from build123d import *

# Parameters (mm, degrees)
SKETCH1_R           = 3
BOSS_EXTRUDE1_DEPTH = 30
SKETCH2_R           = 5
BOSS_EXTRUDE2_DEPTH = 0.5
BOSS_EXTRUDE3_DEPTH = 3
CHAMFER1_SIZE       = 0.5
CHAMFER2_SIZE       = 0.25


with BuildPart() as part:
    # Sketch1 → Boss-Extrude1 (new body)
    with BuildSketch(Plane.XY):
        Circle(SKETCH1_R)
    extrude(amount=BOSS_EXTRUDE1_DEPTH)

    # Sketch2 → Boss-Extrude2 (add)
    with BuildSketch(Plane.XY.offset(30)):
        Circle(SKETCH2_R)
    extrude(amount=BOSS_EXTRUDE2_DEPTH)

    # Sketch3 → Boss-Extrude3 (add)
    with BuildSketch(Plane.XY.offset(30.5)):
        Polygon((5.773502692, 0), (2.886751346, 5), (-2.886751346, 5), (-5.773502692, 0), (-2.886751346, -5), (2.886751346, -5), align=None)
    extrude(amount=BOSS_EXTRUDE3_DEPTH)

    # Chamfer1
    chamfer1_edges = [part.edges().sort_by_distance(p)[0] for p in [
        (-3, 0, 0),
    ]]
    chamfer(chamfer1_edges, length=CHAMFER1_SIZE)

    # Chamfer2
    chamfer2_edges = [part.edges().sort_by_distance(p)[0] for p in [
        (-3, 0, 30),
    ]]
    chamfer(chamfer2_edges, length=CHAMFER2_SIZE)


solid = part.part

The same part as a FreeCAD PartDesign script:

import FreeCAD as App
import Part
import Sketcher

V = App.Vector
Q = App.Units.Quantity


def edges_at(feature, points):
    """Names of the edges that pass closest to the given points."""
    edges = feature.Shape.Edges
    near = lambda p: min(range(len(edges)), key=lambda i: edges[i].distToShape(Part.Vertex(*p))[0])
    return sorted({f"Edge{near(p) + 1}" for p in points})


def add_polygon(sketch, points):
    """Adds a closed chain of lines whose ends are joined by coincident constraints."""
    first, n = sketch.GeometryCount, len(points)
    for a, b in zip(points, points[1:] + points[:1]):
        sketch.addGeometry(Part.LineSegment(App.Vector(*a, 0), App.Vector(*b, 0)), False)
    for i in range(n):
        sketch.addConstraint(Sketcher.Constraint("Coincident", first + i, 2, first + (i + 1) % n, 1))

doc = App.newDocument("Part")
params = doc.addObject("Spreadsheet::Sheet", "Params")
for row, (alias, value) in enumerate([
    ("sketch1_diameter", "6 mm"),
    ("pad1_length", "30 mm"),
    ("sketch2_diameter", "10 mm"),
    ("pad2_length", "0.5 mm"),
    ("pad3_length", "3 mm"),
    ("chamfer_size", "0.5 mm"),
    ("chamfer2_size", "0.25 mm"),
], start=1):
    params.set(f"A{row}", alias)
    params.set(f"B{row}", "=" + value)
    params.setAlias(f"B{row}", alias)

body = doc.addObject("PartDesign::Body", "Body")

# Sketch on XY plane
sketch1 = body.newObject("Sketcher::SketchObject", "Sketch")
sketch1.AttachmentSupport = (doc.getObject("XY_Plane"), [""])
sketch1.MapMode = "FlatFace"
sketch1.addGeometry(Part.Circle(V(0, 0, 0), V(0, 0, 1), 3), False)
sketch1.addConstraint([
    Sketcher.Constraint("Coincident", 0, 3, -1, 1),
    Sketcher.Constraint("Diameter", 0, 6.0),
])
sketch1.setExpression("Constraints[1]", "Params.sketch1_diameter")
pad1 = body.newObject("PartDesign::Pad", "Pad")
pad1.Profile = sketch1
pad1.setExpression("Length", "Params.pad1_length")

# Sketch on XY plane
sketch2 = body.newObject("Sketcher::SketchObject", "Sketch001")
sketch2.AttachmentSupport = (doc.getObject("XY_Plane"), [""])
sketch2.MapMode = "FlatFace"
sketch2.AttachmentOffset = App.Placement(V(0, 0, 30), App.Rotation())
sketch2.addGeometry(Part.Circle(V(0, 0, 0), V(0, 0, 1), 5), False)
sketch2.addConstraint([
    Sketcher.Constraint("Coincident", 0, 3, -1, 1),
    Sketcher.Constraint("Diameter", 0, 10.0),
])
sketch2.setExpression("Constraints[1]", "Params.sketch2_diameter")
pad2 = body.newObject("PartDesign::Pad", "Pad001")
pad2.Profile = sketch2
pad2.setExpression("Length", "Params.pad2_length")

# Sketch on XY plane
sketch3 = body.newObject("Sketcher::SketchObject", "Sketch002")
sketch3.AttachmentSupport = (doc.getObject("XY_Plane"), [""])
sketch3.MapMode = "FlatFace"
sketch3.AttachmentOffset = App.Placement(V(0, 0, 30.5), App.Rotation())
add_polygon(sketch3, [(6, 0), (3, 5), (-3, 5), (-6, 0), (-3, -5), (3, -5)])  # lines 0-5
sketch3.addConstraint([
    Sketcher.Constraint("Horizontal", 1),
    Sketcher.Constraint("Horizontal", 4),
    Sketcher.Constraint("Symmetric", 0, 2, 3, 2, -1, 1),
    Sketcher.Constraint("Symmetric", 2, 2, 5, 2, -1, 1),
    Sketcher.Constraint("PointOnObject", 2, 2, -1),
    Sketcher.Constraint("Parallel", 2, 5),
    Sketcher.Constraint("Vertical", 1, 2, 3, 2),
    Sketcher.Constraint("Angle", 0, Q("120 deg")),
    Sketcher.Constraint("DistanceY", -1, 1, 0, 2, 5.0),
    Sketcher.Constraint("DistanceX", 1, 2, 1, 1, 5.773503),
])
pad3 = body.newObject("PartDesign::Pad", "Pad002")
pad3.Profile = sketch3
pad3.setExpression("Length", "Params.pad3_length")
doc.recompute()

chamfer = body.newObject("PartDesign::Chamfer", "Chamfer")
chamfer.Base = (pad3, edges_at(pad3, [(-3, 0, 0)]))
chamfer.setExpression("Size", "Params.chamfer_size")
doc.recompute()

chamfer2 = body.newObject("PartDesign::Chamfer", "Chamfer001")
chamfer2.Base = (chamfer, edges_at(chamfer, [(-3, 0, 30)]))
chamfer2.setExpression("Size", "Params.chamfer2_size")

doc.recompute()
